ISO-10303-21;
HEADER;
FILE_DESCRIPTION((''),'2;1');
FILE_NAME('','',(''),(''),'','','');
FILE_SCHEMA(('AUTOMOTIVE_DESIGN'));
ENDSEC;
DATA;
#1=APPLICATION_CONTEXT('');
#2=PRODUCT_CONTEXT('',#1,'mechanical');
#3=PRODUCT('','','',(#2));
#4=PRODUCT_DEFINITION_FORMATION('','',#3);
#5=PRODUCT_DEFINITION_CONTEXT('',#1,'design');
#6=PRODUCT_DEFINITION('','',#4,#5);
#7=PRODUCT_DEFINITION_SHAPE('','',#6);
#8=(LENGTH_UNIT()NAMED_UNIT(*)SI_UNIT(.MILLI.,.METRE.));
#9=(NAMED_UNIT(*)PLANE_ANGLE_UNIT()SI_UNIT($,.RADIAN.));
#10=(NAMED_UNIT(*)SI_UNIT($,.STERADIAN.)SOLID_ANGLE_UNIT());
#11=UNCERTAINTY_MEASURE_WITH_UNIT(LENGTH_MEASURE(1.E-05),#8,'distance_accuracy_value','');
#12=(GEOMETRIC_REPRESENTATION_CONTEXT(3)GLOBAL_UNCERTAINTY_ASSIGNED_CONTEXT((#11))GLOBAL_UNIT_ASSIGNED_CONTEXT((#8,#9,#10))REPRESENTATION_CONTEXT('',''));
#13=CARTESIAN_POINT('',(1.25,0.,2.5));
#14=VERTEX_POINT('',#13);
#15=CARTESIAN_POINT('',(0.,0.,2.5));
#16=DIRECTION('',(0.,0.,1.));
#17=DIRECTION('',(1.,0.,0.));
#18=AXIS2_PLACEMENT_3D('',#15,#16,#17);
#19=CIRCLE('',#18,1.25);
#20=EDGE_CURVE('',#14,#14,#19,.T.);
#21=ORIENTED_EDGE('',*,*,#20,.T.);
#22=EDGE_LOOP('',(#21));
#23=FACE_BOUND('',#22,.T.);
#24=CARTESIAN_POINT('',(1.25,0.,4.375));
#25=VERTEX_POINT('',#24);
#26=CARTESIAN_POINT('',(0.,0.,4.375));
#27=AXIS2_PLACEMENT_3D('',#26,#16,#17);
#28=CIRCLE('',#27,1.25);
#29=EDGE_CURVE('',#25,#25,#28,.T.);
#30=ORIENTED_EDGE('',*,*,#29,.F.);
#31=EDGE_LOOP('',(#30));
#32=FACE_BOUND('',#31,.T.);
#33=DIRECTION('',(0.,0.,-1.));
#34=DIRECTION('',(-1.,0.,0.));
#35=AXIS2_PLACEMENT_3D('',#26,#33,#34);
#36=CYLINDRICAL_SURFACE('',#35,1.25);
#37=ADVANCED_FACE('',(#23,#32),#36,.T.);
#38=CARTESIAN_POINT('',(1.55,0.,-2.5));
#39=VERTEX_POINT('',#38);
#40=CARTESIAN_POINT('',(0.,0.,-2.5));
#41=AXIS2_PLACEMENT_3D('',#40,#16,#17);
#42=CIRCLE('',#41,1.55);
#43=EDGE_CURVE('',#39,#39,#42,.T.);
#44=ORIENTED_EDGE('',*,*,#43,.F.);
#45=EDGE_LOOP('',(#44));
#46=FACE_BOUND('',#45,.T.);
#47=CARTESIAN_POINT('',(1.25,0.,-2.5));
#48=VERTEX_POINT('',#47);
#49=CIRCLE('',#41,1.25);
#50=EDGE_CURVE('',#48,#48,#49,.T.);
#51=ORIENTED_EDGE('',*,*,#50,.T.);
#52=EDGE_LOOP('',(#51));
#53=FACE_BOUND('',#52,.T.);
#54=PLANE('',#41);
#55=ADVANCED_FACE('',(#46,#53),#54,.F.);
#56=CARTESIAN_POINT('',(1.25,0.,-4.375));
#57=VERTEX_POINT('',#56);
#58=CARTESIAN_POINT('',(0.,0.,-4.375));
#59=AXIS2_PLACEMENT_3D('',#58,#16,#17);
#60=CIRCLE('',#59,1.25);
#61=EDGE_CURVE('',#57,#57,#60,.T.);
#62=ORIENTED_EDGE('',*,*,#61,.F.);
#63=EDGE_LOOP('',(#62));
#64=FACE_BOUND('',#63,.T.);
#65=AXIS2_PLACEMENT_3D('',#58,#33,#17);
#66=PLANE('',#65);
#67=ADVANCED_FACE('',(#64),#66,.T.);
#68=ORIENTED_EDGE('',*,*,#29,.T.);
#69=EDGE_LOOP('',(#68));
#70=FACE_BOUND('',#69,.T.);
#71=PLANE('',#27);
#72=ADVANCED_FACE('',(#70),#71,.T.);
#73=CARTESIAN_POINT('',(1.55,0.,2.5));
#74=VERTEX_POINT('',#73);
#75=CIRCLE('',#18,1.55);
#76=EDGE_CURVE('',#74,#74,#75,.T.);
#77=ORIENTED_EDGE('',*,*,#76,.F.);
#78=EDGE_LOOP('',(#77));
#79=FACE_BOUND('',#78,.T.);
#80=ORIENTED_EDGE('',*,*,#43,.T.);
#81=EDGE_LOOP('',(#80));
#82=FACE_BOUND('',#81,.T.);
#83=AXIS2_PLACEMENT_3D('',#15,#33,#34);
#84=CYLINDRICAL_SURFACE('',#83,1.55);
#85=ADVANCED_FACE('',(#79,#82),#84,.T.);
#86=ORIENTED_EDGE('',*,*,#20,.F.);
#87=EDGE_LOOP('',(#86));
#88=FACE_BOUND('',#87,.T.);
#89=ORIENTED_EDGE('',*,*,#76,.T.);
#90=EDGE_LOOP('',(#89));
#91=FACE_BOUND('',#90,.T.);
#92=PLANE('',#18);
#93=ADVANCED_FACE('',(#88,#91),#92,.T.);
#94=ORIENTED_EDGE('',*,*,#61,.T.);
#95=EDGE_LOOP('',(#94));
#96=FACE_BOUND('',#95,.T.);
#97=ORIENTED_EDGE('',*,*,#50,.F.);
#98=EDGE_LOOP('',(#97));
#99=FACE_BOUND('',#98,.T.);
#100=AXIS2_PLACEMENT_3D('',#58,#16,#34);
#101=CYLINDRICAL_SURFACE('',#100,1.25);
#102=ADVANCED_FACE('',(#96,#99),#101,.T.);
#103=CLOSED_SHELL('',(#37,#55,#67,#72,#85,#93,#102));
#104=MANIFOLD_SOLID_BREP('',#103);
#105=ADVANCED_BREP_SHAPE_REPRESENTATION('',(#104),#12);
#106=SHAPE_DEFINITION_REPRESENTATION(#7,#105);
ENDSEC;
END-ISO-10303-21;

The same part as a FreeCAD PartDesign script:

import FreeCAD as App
import Part
import Sketcher
from FreeCAD import Vector
Q = App.Units.Quantity

doc = App.newDocument("Part")
body = doc.addObject("PartDesign::Body", "Body")

sketch1 = body.newObject("Sketcher::SketchObject", "Sketch")
sketch1.AttachmentSupport = (doc.getObject("XY_Plane"), [""])
sketch1.MapMode = "FlatFace"
sketch1.addGeometry(Part.Circle(Vector(0, 0, 0), Vector(0, 0, 1), 1.6), False)
sketch1.addConstraint([
    Sketcher.Constraint("Coincident", 0, 3, -1, 1),
    Sketcher.Constraint("Diameter", 0, Q("3.1 mm")),
])
pad1 = body.newObject("PartDesign::Pad", "Pad")
pad1.Profile = sketch1
pad1.Length = 5
pad1.Midplane = True

sketch2 = body.newObject("Sketcher::SketchObject", "Sketch001")
sketch2.AttachmentSupport = (doc.getObject("XY_Plane"), [""])
sketch2.MapMode = "FlatFace"
sketch2.AttachmentOffset = App.Placement(Vector(0, 0, 2.5), App.Rotation())
sketch2.addGeometry(Part.Circle(Vector(0, 0, 0), Vector(0, 0, 1), 1.2), False)
sketch2.addConstraint([
    Sketcher.Constraint("Coincident", 0, 3, -1, 1),
    Sketcher.Constraint("Diameter", 0, Q("2.5 mm")),
])
pad2 = body.newObject("PartDesign::Pad", "Pad001")
pad2.Profile = sketch2
pad2.Length = 1.875
doc.recompute()

mirrored = body.newObject("PartDesign::Mirrored", "Mirrored")
mirrored.Originals = [pad2]
mirrored.MirrorPlane = (doc.getObject("XY_Plane"), [""])
body.Tip = mirrored

doc.recompute()
